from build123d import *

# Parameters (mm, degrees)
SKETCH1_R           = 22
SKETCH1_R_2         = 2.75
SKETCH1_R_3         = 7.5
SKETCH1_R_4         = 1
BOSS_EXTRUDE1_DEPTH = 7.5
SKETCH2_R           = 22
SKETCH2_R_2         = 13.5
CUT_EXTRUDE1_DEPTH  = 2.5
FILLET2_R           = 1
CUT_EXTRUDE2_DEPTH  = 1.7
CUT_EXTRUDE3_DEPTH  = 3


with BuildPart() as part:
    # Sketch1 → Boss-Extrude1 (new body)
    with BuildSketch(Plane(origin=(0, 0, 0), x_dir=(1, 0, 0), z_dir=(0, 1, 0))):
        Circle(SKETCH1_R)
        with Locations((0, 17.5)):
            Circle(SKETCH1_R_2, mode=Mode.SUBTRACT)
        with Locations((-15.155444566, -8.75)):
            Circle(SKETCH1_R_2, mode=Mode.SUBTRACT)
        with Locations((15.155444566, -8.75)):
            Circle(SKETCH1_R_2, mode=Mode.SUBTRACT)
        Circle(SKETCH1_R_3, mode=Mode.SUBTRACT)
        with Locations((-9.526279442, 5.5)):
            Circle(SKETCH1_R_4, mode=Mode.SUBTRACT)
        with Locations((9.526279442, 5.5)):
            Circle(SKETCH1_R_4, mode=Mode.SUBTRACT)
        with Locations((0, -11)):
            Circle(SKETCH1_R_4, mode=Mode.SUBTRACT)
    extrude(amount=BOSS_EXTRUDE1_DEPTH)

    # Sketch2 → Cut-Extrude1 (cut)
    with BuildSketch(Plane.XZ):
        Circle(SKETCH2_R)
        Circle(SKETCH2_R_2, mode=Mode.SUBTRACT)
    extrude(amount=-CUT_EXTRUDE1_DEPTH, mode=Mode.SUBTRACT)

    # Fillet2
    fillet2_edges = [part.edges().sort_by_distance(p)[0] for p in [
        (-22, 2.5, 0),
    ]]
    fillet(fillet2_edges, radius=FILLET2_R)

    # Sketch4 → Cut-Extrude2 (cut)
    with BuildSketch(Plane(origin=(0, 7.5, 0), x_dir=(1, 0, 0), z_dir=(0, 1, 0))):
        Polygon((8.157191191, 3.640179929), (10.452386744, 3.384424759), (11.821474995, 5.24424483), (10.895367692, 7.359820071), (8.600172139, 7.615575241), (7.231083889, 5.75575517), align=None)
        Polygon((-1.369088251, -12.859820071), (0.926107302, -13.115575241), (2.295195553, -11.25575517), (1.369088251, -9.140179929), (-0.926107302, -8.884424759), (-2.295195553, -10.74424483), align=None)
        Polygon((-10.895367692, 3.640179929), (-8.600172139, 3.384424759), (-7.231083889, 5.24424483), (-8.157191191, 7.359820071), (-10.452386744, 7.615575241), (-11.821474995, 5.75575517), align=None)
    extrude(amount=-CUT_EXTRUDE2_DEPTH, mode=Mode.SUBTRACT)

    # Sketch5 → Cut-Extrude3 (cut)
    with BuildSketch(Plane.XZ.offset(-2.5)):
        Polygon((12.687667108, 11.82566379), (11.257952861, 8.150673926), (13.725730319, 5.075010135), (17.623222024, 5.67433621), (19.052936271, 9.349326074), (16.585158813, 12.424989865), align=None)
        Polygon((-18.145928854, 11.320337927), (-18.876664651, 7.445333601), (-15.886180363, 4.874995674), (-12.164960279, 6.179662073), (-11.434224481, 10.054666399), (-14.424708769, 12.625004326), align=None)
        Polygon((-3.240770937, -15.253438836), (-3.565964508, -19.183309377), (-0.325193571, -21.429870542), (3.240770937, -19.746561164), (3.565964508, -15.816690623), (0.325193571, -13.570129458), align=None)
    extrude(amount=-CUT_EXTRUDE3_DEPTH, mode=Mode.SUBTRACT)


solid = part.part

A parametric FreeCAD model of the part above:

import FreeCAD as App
import Part
import Sketcher

V = App.Vector
Q = App.Units.Quantity


def edges_at(feature, points):
    """Names of the edges that pass closest to the given points."""
    edges = feature.Shape.Edges
    near = lambda p: min(range(len(edges)), key=lambda i: edges[i].distToShape(Part.Vertex(*p))[0])
    return sorted({f"Edge{near(p) + 1}" for p in points})

doc = App.newDocument("Part")
body = doc.addObject("PartDesign::Body", "Body")

# Sketch on XZ plane
sketch1 = body.newObject("Sketcher::SketchObject", "Sketch")
sketch1.AttachmentSupport = (doc.getObject("XZ_Plane"), [""])
sketch1.MapMode = "FlatFace"
sketch1.addGeometry(Part.Circle(V(0, 0, 0), V(0, 0, 1), 22), False)
sketch1.addGeometry(Part.Circle(V(-15.2, 8.8, 0), V(0, 0, 1), 2.8), False)
sketch1.addGeometry(Part.Circle(V(0, 11, 0), V(0, 0, 1), 1), False)
sketch1.addGeometry(Part.Circle(V(15.2, 8.8, 0), V(0, 0, 1), 2.8), False)
sketch1.addGeometry(Part.Circle(V(0, 0, 0), V(0, 0, 1), 7.5), False)
sketch1.addGeometry(Part.Circle(V(-9.5, -5.5, 0), V(0, 0, 1), 1), False)
sketch1.addGeometry(Part.Circle(V(9.5, -5.5, 0), V(0, 0, 1), 1), False)
sketch1.addGeometry(Part.Circle(V(0, -17.5, 0), V(0, 0, 1), 2.8), False)
sketch1.addConstraint(Sketcher.Constraint("Coincident", 0, 3, -1, 1))
sketch1.addConstraint(Sketcher.Constraint("Coincident", 4, 3, -1, 1))
sketch1.addConstraint(Sketcher.Constraint("Equal", 1, 3))
sketch1.addConstraint(Sketcher.Constraint("Equal", 2, 5))
sketch1.addConstraint(Sketcher.Constraint("Equal", 5, 6))
sketch1.addConstraint(Sketcher.Constraint("Equal", 3, 7))
sketch1.addConstraint(Sketcher.Constraint("Symmetric", 1, 3, 3, 3, -2))
sketch1.addConstraint(Sketcher.Constraint("Symmetric", 5, 3, 6, 3, -2))
sketch1.addConstraint(Sketcher.Constraint("PointOnObject", 2, 3, -2))
sketch1.addConstraint(Sketcher.Constraint("PointOnObject", 7, 3, -2))
sketch1.addConstraint(Sketcher.Constraint("Diameter", 0, Q("44 mm")))
sketch1.addConstraint(Sketcher.Constraint("Diameter", 2, Q("2 mm")))
sketch1.addConstraint(Sketcher.Constraint("Diameter", 4, Q("15 mm")))
sketch1.addConstraint(Sketcher.Constraint("Diameter", 1, Q("5.5 mm")))
sketch1.addConstraint(Sketcher.Constraint("DistanceY", -1, 1, 2, 3, Q("11 mm")))
sketch1.addConstraint(Sketcher.Constraint("DistanceY", 7, 3, 5, 3, Q("12 mm")))
sketch1.addConstraint(Sketcher.Constraint("DistanceY", 5, 3, -1, 1, Q("5.5 mm")))
sketch1.addConstraint(Sketcher.Constraint("DistanceY", -1, 1, 1, 3, Q("8.75 mm")))
sketch1.addConstraint(Sketcher.Constraint("DistanceX", 5, 3, -1, 1, Q("9.526279 mm")))
sketch1.addConstraint(Sketcher.Constraint("DistanceX", 1, 3, 3, 3, Q("30.310889 mm")))
pad1 = body.newObject("PartDesign::Pad", "Pad")
pad1.Profile = sketch1
pad1.Length = 7.5
pad1.Reversed = True

# Sketch on XZ plane
sketch2 = body.newObject("Sketcher::SketchObject", "Sketch001")
sketch2.AttachmentSupport = (doc.getObject("XZ_Plane"), [""])
sketch2.MapMode = "FlatFace"
sketch2.addGeometry(Part.Circle(V(0, 0, 0), V(0, 0, 1), 22), False)
sketch2.addGeometry(Part.Circle(V(0, 0, 0), V(0, 0, 1), 14), False)
sketch2.addConstraint(Sketcher.Constraint("Coincident", 0, 3, -1, 1))
sketch2.addConstraint(Sketcher.Constraint("Coincident", 1, 3, -1, 1))
sketch2.addConstraint(Sketcher.Constraint("Diameter", 0, Q("44 mm")))
sketch2.addConstraint(Sketcher.Constraint("Diameter", 1, Q("27 mm")))
pocket1 = body.newObject("PartDesign::Pocket", "Pocket")
pocket1.Profile = sketch2
pocket1.Length = 2.5
doc.recompute()

fillet = body.newObject("PartDesign::Fillet", "Fillet")
fillet.Base = (pocket1, edges_at(pocket1, [(-22, 2.5, 0)]))
fillet.Radius = 1

# Sketch on XZ plane
sketch3 = body.newObject("Sketcher::SketchObject", "Sketch002")
sketch3.AttachmentSupport = (doc.getObject("XZ_Plane"), [""])
sketch3.MapMode = "FlatFace"
sketch3.AttachmentOffset = App.Placement(V(0, 0, -7.5), App.Rotation())
sketch3.addGeometry(Part.LineSegment(V(8.2, -3.6, 0), V(10.5, -3.4, 0)), False)
sketch3.addGeometry(Part.LineSegment(V(10.5, -3.4, 0), V(11.8, -5.2, 0)), False)
sketch3.addGeometry(Part.LineSegment(V(11.8, -5.2, 0), V(10.9, -7.4, 0)), False)
sketch3.addGeometry(Part.LineSegment(V(10.9, -7.4, 0), V(8.6, -7.6, 0)), False)
sketch3.addGeometry(Part.LineSegment(V(8.6, -7.6, 0), V(7.2, -5.8, 0)), False)
sketch3.addGeometry(Part.LineSegment(V(7.2, -5.8, 0), V(8.2, -3.6, 0)), False)
sketch3.addGeometry(Part.LineSegment(V(-1.4, 12.9, 0), V(0.9, 13.1, 0)), False)
sketch3.addGeometry(Part.LineSegment(V(0.9, 13.1, 0), V(2.3, 11.3, 0)), False)
sketch3.addGeometry(Part.LineSegment(V(2.3, 11.3, 0), V(1.4, 9.1, 0)), False)
sketch3.addGeometry(Part.LineSegment(V(1.4, 9.1, 0), V(-0.9, 8.9, 0)), False)
sketch3.addGeometry(Part.LineSegment(V(-0.9, 8.9, 0), V(-2.3, 10.7, 0)), False)
sketch3.addGeometry(Part.LineSegment(V(-2.3, 10.7, 0), V(-1.4, 12.9, 0)), False)
sketch3.addGeometry(Part.LineSegment(V(-10.9, -3.6, 0), V(-8.6, -3.4, 0)), False)
sketch3.addGeometry(Part.LineSegment(V(-8.6, -3.4, 0), V(-7.2, -5.2, 0)), False)
sketch3.addGeometry(Part.LineSegment(V(-7.2, -5.2, 0), V(-8.2, -7.4, 0)), False)
sketch3.addGeometry(Part.LineSegment(V(-8.2, -7.4, 0), V(-10.5, -7.6, 0)), False)
sketch3.addGeometry(Part.LineSegment(V(-10.5, -7.6, 0), V(-11.8, -5.8, 0)), False)
sketch3.addGeometry(Part.LineSegment(V(-11.8, -5.8, 0), V(-10.9, -3.6, 0)), False)
sketch3.addConstraint(Sketcher.Constraint("Coincident", 0, 2, 1, 1))
sketch3.addConstraint(Sketcher.Constraint("Coincident", 1, 2, 2, 1))
sketch3.addConstraint(Sketcher.Constraint("Coincident", 2, 2, 3, 1))
sketch3.addConstraint(Sketcher.Constraint("Coincident", 3, 2, 4, 1))
sketch3.addConstraint(Sketcher.Constraint("Coincident", 4, 2, 5, 1))
sketch3.addConstraint(Sketcher.Constraint("Coincident", 5, 2, 0, 1))
sketch3.addConstraint(Sketcher.Constraint("Coincident", 6, 2, 7, 1))
sketch3.addConstraint(Sketcher.Constraint("Coincident", 7, 2, 8, 1))
sketch3.addConstraint(Sketcher.Constraint("Coincident", 8, 2, 9, 1))
sketch3.addConstraint(Sketcher.Constraint("Coincident", 9, 2, 10, 1))
sketch3.addConstraint(Sketcher.Constraint("Coincident", 10, 2, 11, 1))
sketch3.addConstraint(Sketcher.Constraint("Coincident", 11, 2, 6, 1))
sketch3.addConstraint(Sketcher.Constraint("Coincident", 12, 2, 13, 1))
sketch3.addConstraint(Sketcher.Constraint("Coincident", 13, 2, 14, 1))
sketch3.addConstraint(Sketcher.Constraint("Coincident", 14, 2, 15, 1))
sketch3.addConstraint(Sketcher.Constraint("Coincident", 15, 2, 16, 1))
sketch3.addConstraint(Sketcher.Constraint("Coincident", 16, 2, 17, 1))
sketch3.addConstraint(Sketcher.Constraint("Coincident", 17, 2, 12, 1))
sketch3.addConstraint(Sketcher.Constraint("Parallel", 0, 3))
sketch3.addConstraint(Sketcher.Constraint("Parallel", 1, 4))
sketch3.addConstraint(Sketcher.Constraint("Parallel", 2, 5))
sketch3.addConstraint(Sketcher.Constraint("Parallel", 3, 6))
sketch3.addConstraint(Sketcher.Constraint("Parallel", 4, 7))
sketch3.addConstraint(Sketcher.Constraint("Parallel", 5, 8))
sketch3.addConstraint(Sketcher.Constraint("Parallel", 6, 9))
sketch3.addConstraint(Sketcher.Constraint("Parallel", 7, 10))
sketch3.addConstraint(Sketcher.Constraint("Parallel", 8, 11))
sketch3.addConstraint(Sketcher.Constraint("Parallel", 9, 12))
sketch3.addConstraint(Sketcher.Constraint("Parallel", 10, 13))
sketch3.addConstraint(Sketcher.Constraint("Parallel", 11, 14))
sketch3.addConstraint(Sketcher.Constraint("Parallel", 12, 15))
sketch3.addConstraint(Sketcher.Constraint("Parallel", 13, 16))
sketch3.addConstraint(Sketcher.Constraint("Parallel", 14, 17))
sketch3.addConstraint(Sketcher.Constraint("Horizontal", 0, 2, 12, 2))
sketch3.addConstraint(Sketcher.Constraint("Horizontal", 1, 2, 13, 2))
sketch3.addConstraint(Sketcher.Constraint("Horizontal", 2, 2, 14, 2))
sketch3.addConstraint(Sketcher.Constraint("Horizontal", 3, 2, 15, 2))
sketch3.addConstraint(Sketcher.Constraint("Horizontal", 4, 2, 16, 2))
sketch3.addConstraint(Sketcher.Constraint("Equal", 0, 1))
sketch3.addConstraint(Sketcher.Constraint("Equal", 1, 2))
sketch3.addConstraint(Sketcher.Constraint("Equal", 2, 3))
sketch3.addConstraint(Sketcher.Constraint("Equal", 5, 6))
sketch3.addConstraint(Sketcher.Constraint("Equal", 6, 7))
sketch3.addConstraint(Sketcher.Constraint("Equal", 7, 8))
sketch3.addConstraint(Sketcher.Constraint("Equal", 8, 9))
sketch3.addConstraint(Sketcher.Constraint("DistanceY", 0, 2, 6, 2, Q("16.5 mm")))
sketch3.addConstraint(Sketcher.Constraint("Distance", 0, Q("2.309401 mm")))
sketch3.addConstraint(Sketcher.Constraint("DistanceX", 8, 2, 0, 2, Q("9.083298 mm")))
sketch3.addConstraint(Sketcher.Constraint("DistanceY", 2, 2, -1, 1, Q("7.35982 mm")))
sketch3.addConstraint(Sketcher.Constraint("DistanceX", -1, 1, 5, 2, Q("8.157191 mm")))
sketch3.addConstraint(Sketcher.Constraint("DistanceY", 5, 2, -1, 1, Q("3.64018 mm")))
sketch3.addConstraint(Sketcher.Constraint("DistanceX", -1, 1, 8, 2, Q("1.369088 mm")))
sketch3.addConstraint(Sketcher.Constraint("DistanceX", 11, 2, -1, 1, Q("1.369088 mm")))
sketch3.addConstraint(Sketcher.Constraint("DistanceX", 14, 2, -1, 1, Q("8.157191 mm")))
pocket2 = body.newObject("PartDesign::Pocket", "Pocket001")
pocket2.Profile = sketch3
pocket2.Length = 1.7
pocket2.Reversed = True

# Sketch on XZ plane
sketch4 = body.newObject("Sketcher::SketchObject", "Sketch003")
sketch4.AttachmentSupport = (doc.getObject("XZ_Plane"), [""])
sketch4.MapMode = "FlatFace"
sketch4.AttachmentOffset = App.Placement(V(0, 0, -2.5), App.Rotation())
sketch4.addGeometry(Part.LineSegment(V(12.7, 11.8, 0), V(11.3, 8.2, 0)), False)
sketch4.addGeometry(Part.LineSegment(V(11.3, 8.2, 0), V(13.7, 5.1, 0)), False)
sketch4.addGeometry(Part.LineSegment(V(13.7, 5.1, 0), V(17.6, 5.7, 0)), False)
sketch4.addGeometry(Part.LineSegment(V(17.6, 5.7, 0), V(19.1, 9.3, 0)), False)
sketch4.addGeometry(Part.LineSegment(V(19.1, 9.3, 0), V(16.6, 12.4, 0)), False)
sketch4.addGeometry(Part.LineSegment(V(16.6, 12.4, 0), V(12.7, 11.8, 0)), False)
sketch4.addGeometry(Part.LineSegment(V(-18.1, 11.3, 0), V(-18.9, 7.4, 0)), False)
sketch4.addGeometry(Part.LineSegment(V(-18.9, 7.4, 0), V(-15.9, 4.9, 0)), False)
sketch4.addGeometry(Part.LineSegment(V(-15.9, 4.9, 0), V(-12.2, 6.2, 0)), False)
sketch4.addGeometry(Part.LineSegment(V(-12.2, 6.2, 0), V(-11.4, 10.1, 0)), False)
sketch4.addGeometry(Part.LineSegment(V(-11.4, 10.1, 0), V(-14.4, 12.6, 0)), False)
sketch4.addGeometry(Part.LineSegment(V(-14.4, 12.6, 0), V(-18.1, 11.3, 0)), False)
sketch4.addGeometry(Part.LineSegment(V(-3.2, -15.3, 0), V(-3.6, -19.2, 0)), False)
sketch4.addGeometry(Part.LineSegment(V(-3.6, -19.2, 0), V(-0.3, -21.4, 0)), False)
sketch4.addGeometry(Part.LineSegment(V(-0.3, -21.4, 0), V(3.2, -19.7, 0)), False)
sketch4.addGeometry(Part.LineSegment(V(3.2, -19.7, 0), V(3.6, -15.8, 0)), False)
sketch4.addGeometry(Part.LineSegment(V(3.6, -15.8, 0), V(0.3, -13.6, 0)), False)
sketch4.addGeometry(Part.LineSegment(V(0.3, -13.6, 0), V(-3.2, -15.3, 0)), False)
sketch4.addConstraint(Sketcher.Constraint("Coincident", 0, 2, 1, 1))
sketch4.addConstraint(Sketcher.Constraint("Coincident", 1, 2, 2, 1))
sketch4.addConstraint(Sketcher.Constraint("Coincident", 2, 2, 3, 1))
sketch4.addConstraint(Sketcher.Constraint("Coincident", 3, 2, 4, 1))
sketch4.addConstraint(Sketcher.Constraint("Coincident", 4, 2, 5, 1))
sketch4.addConstraint(Sketcher.Constraint("Coincident", 5, 2, 0, 1))
sketch4.addConstraint(Sketcher.Constraint("Coincident", 6, 2, 7, 1))
sketch4.addConstraint(Sketcher.Constraint("Coincident", 7, 2, 8, 1))
sketch4.addConstraint(Sketcher.Constraint("Coincident", 8, 2, 9, 1))
sketch4.addConstraint(Sketcher.Constraint("Coincident", 9, 2, 10, 1))
sketch4.addConstraint(Sketcher.Constraint("Coincident", 10, 2, 11, 1))
sketch4.addConstraint(Sketcher.Constraint("Coincident", 11, 2, 6, 1))
sketch4.addConstraint(Sketcher.Constraint("Coincident", 12, 2, 13, 1))
sketch4.addConstraint(Sketcher.Constraint("Coincident", 13, 2, 14, 1))
sketch4.addConstraint(Sketcher.Constraint("Coincident", 14, 2, 15, 1))
sketch4.addConstraint(Sketcher.Constraint("Coincident", 15, 2, 16, 1))
sketch4.addConstraint(Sketcher.Constraint("Coincident", 16, 2, 17, 1))
sketch4.addConstraint(Sketcher.Constraint("Coincident", 17, 2, 12, 1))
sketch4.addConstraint(Sketcher.Constraint("Parallel", 0, 3))
sketch4.addConstraint(Sketcher.Constraint("Parallel", 1, 4))
sketch4.addConstraint(Sketcher.Constraint("Parallel", 2, 5))
sketch4.addConstraint(Sketcher.Constraint("Parallel", 6, 9))
sketch4.addConstraint(Sketcher.Constraint("Parallel", 7, 10))
sketch4.addConstraint(Sketcher.Constraint("Parallel", 8, 11))
sketch4.addConstraint(Sketcher.Constraint("Parallel", 12, 15))
sketch4.addConstraint(Sketcher.Constraint("Parallel", 13, 16))
sketch4.addConstraint(Sketcher.Constraint("Parallel", 14, 17))
sketch4.addConstraint(Sketcher.Constraint("Equal", 0, 1))
sketch4.addConstraint(Sketcher.Constraint("Equal", 1, 2))
sketch4.addConstraint(Sketcher.Constraint("Equal", 2, 3))
sketch4.addConstraint(Sketcher.Constraint("Equal", 5, 6))
sketch4.addConstraint(Sketcher.Constraint("Equal", 6, 7))
sketch4.addConstraint(Sketcher.Constraint("Equal", 7, 8))
sketch4.addConstraint(Sketcher.Constraint("Equal", 8, 9))
sketch4.addConstraint(Sketcher.Constraint("Equal", 11, 12))
sketch4.addConstraint(Sketcher.Constraint("Equal", 12, 13))
sketch4.addConstraint(Sketcher.Constraint("Equal", 13, 14))
sketch4.addConstraint(Sketcher.Constraint("Equal", 14, 15))
sketch4.addConstraint(Sketcher.Constraint("DistanceY", 8, 2, 5, 2, Q("5.646002 mm")))
sketch4.addConstraint(Sketcher.Constraint("DistanceX", 6, 2, 12, 2, Q("15.3107 mm")))
sketch4.addConstraint(Sketcher.Constraint("DistanceY", 15, 2, 1, 2, Q("20.891701 mm")))
sketch4.addConstraint(Sketcher.Constraint("DistanceX", -1, 1, 1, 2, Q("13.72573 mm")))
sketch4.addConstraint(Sketcher.Constraint("DistanceY", -1, 1, 1, 2, Q("5.07501 mm")))
sketch4.addConstraint(Sketcher.Constraint("DistanceX", -1, 1, 4, 2, Q("16.585159 mm")))
sketch4.addConstraint(Sketcher.Constraint("DistanceY", -1, 1, 4, 2, Q("12.42499 mm")))
sketch4.addConstraint(Sketcher.Constraint("DistanceX", 7, 2, -1, 1, Q("15.88618 mm")))
sketch4.addConstraint(Sketcher.Constraint("DistanceX", 8, 2, -1, 1, Q("12.16496 mm")))
sketch4.addConstraint(Sketcher.Constraint("DistanceX", 10, 2, -1, 1, Q("14.424709 mm")))
sketch4.addConstraint(Sketcher.Constraint("DistanceY", 12, 2, -1, 1, Q("19.183309 mm")))
sketch4.addConstraint(Sketcher.Constraint("DistanceY", 13, 2, -1, 1, Q("21.429871 mm")))
sketch4.addConstraint(Sketcher.Constraint("DistanceX", -1, 1, 14, 2, Q("3.240771 mm")))
sketch4.addConstraint(Sketcher.Constraint("DistanceY", 14, 2, -1, 1, Q("19.746561 mm")))
sketch4.addConstraint(Sketcher.Constraint("DistanceX", 17, 2, -1, 1, Q("3.240771 mm")))
sketch4.addConstraint(Sketcher.Constraint("DistanceX", 1, 2, 2, 2, Q("3.897492 mm")))
pocket3 = body.newObject("PartDesign::Pocket", "Pocket002")
pocket3.Profile = sketch4
pocket3.Length = 3

doc.recompute()
